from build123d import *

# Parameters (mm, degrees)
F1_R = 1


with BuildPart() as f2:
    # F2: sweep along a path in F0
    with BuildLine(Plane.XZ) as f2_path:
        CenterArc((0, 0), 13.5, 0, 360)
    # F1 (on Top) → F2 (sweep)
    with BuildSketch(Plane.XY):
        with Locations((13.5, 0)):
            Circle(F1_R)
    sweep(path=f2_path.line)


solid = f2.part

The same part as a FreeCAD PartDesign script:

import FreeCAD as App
import Part
import Sketcher

doc = App.newDocument("Part")
body = doc.addObject("PartDesign::Body", "Body")

# Sketch on XY plane
sketch1 = doc.addObject("Sketcher::SketchObject", "Sketch")
body.addObject(sketch1)
sketch1.AttachmentSupport = (doc.XY_Plane, [""])
sketch1.MapMode = "FlatFace"
sketch1.addGeometry(Part.Circle(App.Vector(13.5, 0, 0), App.Vector(0, 0, 1), 1), False)
sketch1.addConstraint(Sketcher.Constraint("PointOnObject", 0, 3, -1))
sketch1.addConstraint(Sketcher.Constraint("Diameter", 0, 2.0))
sketch1.addConstraint(Sketcher.Constraint("DistanceX", -1, 1, 0, 3, 13.5))

# Sketch on XZ plane
sketch2 = doc.addObject("Sketcher::SketchObject", "Sketch001")
body.addObject(sketch2)
sketch2.AttachmentSupport = (doc.XZ_Plane, [""])
sketch2.MapMode = "FlatFace"
sketch2.addGeometry(Part.Circle(App.Vector(0, 0, 0), App.Vector(0, 0, 1), 14), False)
sketch2.addConstraint(Sketcher.Constraint("Coincident", 0, 3, -1, 1))
sketch2.addConstraint(Sketcher.Constraint("Diameter", 0, 27.0))
doc.recompute()

additivepipe = doc.addObject("PartDesign::AdditivePipe", "AdditivePipe")
body.addObject(additivepipe)
additivepipe.Profile = sketch1
additivepipe.Spine = (sketch2, ["Edge1"])

doc.recompute()
